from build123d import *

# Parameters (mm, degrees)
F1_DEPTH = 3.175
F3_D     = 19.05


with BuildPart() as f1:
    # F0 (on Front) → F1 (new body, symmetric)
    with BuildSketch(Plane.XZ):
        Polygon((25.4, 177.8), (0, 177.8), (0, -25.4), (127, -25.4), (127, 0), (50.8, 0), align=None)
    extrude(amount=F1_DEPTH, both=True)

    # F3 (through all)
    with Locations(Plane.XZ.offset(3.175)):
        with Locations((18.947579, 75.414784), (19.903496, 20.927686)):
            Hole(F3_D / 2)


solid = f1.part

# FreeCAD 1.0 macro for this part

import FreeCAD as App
import Part
import Sketcher
from FreeCAD import Vector
Q = App.Units.Quantity

doc = App.newDocument("Part")
body = doc.addObject("PartDesign::Body", "Body")

sketch1 = doc.addObject("Sketcher::SketchObject", "Sketch")
body.addObject(sketch1)
sketch1.AttachmentSupport = (doc.XZ_Plane, [""])
sketch1.MapMode = "FlatFace"
sketch1.addGeometry(Part.LineSegment(Vector(25, 178, 0), Vector(0, 178, 0)), False)
sketch1.addGeometry(Part.LineSegment(Vector(0, 178, 0), Vector(0, -25, 0)), False)
sketch1.addGeometry(Part.LineSegment(Vector(0, -25, 0), Vector(127, -25, 0)), False)
sketch1.addGeometry(Part.LineSegment(Vector(127, -25, 0), Vector(127, 0, 0)), False)
sketch1.addGeometry(Part.LineSegment(Vector(127, 0, 0), Vector(51, 0, 0)), False)
sketch1.addGeometry(Part.LineSegment(Vector(51, 0, 0), Vector(25, 178, 0)), False)
sketch1.addConstraint(Sketcher.Constraint("Coincident", 0, 2, 1, 1))
sketch1.addConstraint(Sketcher.Constraint("Coincident", 1, 2, 2, 1))
sketch1.addConstraint(Sketcher.Constraint("Coincident", 2, 2, 3, 1))
sketch1.addConstraint(Sketcher.Constraint("Coincident", 3, 2, 4, 1))
sketch1.addConstraint(Sketcher.Constraint("Coincident", 4, 2, 5, 1))
sketch1.addConstraint(Sketcher.Constraint("Coincident", 5, 2, 0, 1))
sketch1.addConstraint(Sketcher.Constraint("Horizontal", 0))
sketch1.addConstraint(Sketcher.Constraint("Vertical", 1))
sketch1.addConstraint(Sketcher.Constraint("Horizontal", 2))
sketch1.addConstraint(Sketcher.Constraint("Vertical", 3))
sketch1.addConstraint(Sketcher.Constraint("Horizontal", 4))
sketch1.addConstraint(Sketcher.Constraint("PointOnObject", 0, 2, -2))
sketch1.addConstraint(Sketcher.Constraint("PointOnObject", 3, 2, -1))
sketch1.addConstraint(Sketcher.Constraint("Equal", 0, 3))
sketch1.addConstraint(Sketcher.Constraint("DistanceX", 0, 2, 0, 1, Q("1 in")))
sketch1.addConstraint(Sketcher.Constraint("DistanceX", 2, 1, 2, 2, Q("5 in")))
sketch1.addConstraint(Sketcher.Constraint("DistanceX", 4, 2, 4, 1, Q("3 in")))
sketch1.addConstraint(Sketcher.Constraint("DistanceY", 1, 2, 1, 1, Q("8 in")))
pad1 = doc.addObject("PartDesign::Pad", "Pad")
body.addObject(pad1)
pad1.Profile = sketch1
pad1.Length = Q("0.25 in")
pad1.Midplane = True

sketch2 = doc.addObject("Sketcher::SketchObject", "Sketch001")
body.addObject(sketch2)
sketch2.AttachmentSupport = (doc.XZ_Plane, [""])
sketch2.MapMode = "FlatFace"
sketch2.AttachmentOffset = App.Placement(Vector(0, 0, 0.125 * 25.4), App.Rotation())
sketch2.addGeometry(Part.Circle(Vector(19, 75, 0), Vector(0, 0, 1), 10), False)
sketch2.addGeometry(Part.Circle(Vector(20, 21, 0), Vector(0, 0, 1), 10), False)
sketch2.addConstraint(Sketcher.Constraint("Equal", 0, 1))
sketch2.addConstraint(Sketcher.Constraint("Diameter", 0, Q("0.75 in")))
sketch2.addConstraint(Sketcher.Constraint("DistanceX", -1, 1, 0, 3, 18.947579))
sketch2.addConstraint(Sketcher.Constraint("DistanceY", -1, 1, 0, 3, 75.414784))
sketch2.addConstraint(Sketcher.Constraint("DistanceX", -1, 1, 1, 3, 19.903496))
sketch2.addConstraint(Sketcher.Constraint("DistanceY", -1, 1, 1, 3, 20.927686))
doc.recompute()
hole = doc.addObject("PartDesign::Hole", "Hole")
body.addObject(hole)
hole.Profile = sketch2
hole.ThreadType = "None"
hole.Diameter = Q("0.75 in")
hole.DepthType = "ThroughAll"

doc.recompute()
